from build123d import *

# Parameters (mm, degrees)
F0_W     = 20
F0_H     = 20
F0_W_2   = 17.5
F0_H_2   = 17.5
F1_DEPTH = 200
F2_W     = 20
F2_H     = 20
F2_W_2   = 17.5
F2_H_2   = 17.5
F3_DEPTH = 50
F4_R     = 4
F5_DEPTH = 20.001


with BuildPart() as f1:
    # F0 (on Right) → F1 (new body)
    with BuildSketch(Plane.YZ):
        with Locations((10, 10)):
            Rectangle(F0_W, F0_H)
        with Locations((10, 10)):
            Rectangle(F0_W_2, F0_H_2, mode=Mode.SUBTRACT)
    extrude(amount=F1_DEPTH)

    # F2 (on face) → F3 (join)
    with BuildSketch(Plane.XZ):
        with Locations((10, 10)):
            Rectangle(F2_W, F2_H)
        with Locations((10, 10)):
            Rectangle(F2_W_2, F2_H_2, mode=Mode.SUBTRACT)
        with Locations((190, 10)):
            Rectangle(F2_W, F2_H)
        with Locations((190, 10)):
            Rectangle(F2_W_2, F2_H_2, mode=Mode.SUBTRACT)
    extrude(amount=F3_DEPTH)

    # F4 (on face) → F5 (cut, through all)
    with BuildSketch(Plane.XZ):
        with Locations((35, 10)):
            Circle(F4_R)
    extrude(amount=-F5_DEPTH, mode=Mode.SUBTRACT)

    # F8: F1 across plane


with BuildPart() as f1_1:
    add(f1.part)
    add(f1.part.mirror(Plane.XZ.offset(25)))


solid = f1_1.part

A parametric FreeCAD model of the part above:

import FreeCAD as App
import Part
import Sketcher

V = App.Vector
Q = App.Units.Quantity


def add_polygon(sketch, points):
    """Adds a closed chain of lines whose ends are joined by coincident constraints."""
    first, n = sketch.GeometryCount, len(points)
    for a, b in zip(points, points[1:] + points[:1]):
        sketch.addGeometry(Part.LineSegment(App.Vector(*a, 0), App.Vector(*b, 0)), False)
    for i in range(n):
        sketch.addConstraint(Sketcher.Constraint("Coincident", first + i, 2, first + (i + 1) % n, 1))

doc = App.newDocument("Part")
body = doc.addObject("PartDesign::Body", "Body")

sketch1 = doc.addObject("Sketcher::SketchObject", "Sketch")
body.addObject(sketch1)
sketch1.AttachmentSupport = (doc.YZ_Plane, [""])
sketch1.MapMode = "FlatFace"
add_polygon(sketch1, [(0, 20), (0, 0), (20, 0), (20, 20)])
add_polygon(sketch1, [(19, 1), (1, 1), (1, 19), (19, 19)])
sketch1.addConstraint([
    Sketcher.Constraint("Vertical", 0),
    Sketcher.Constraint("Horizontal", 1),
    Sketcher.Constraint("Vertical", 2),
    Sketcher.Constraint("Horizontal", 3),
    Sketcher.Constraint("Horizontal", 4),
    Sketcher.Constraint("Vertical", 5),
    Sketcher.Constraint("Horizontal", 6),
    Sketcher.Constraint("Vertical", 7),
    Sketcher.Constraint("Coincident", 0, 2, -1, 1),
    Sketcher.Constraint("Equal", 3, 0),
    Sketcher.Constraint("Equal", 6, 5),
    Sketcher.Constraint("DistanceX", 1, 1, 1, 2, Q("20 mm")),
    Sketcher.Constraint("DistanceX", 4, 2, 4, 1, Q("17.5 mm")),
    Sketcher.Constraint("DistanceX", -1, 1, 4, 2, Q("1.25 mm")),
    Sketcher.Constraint("DistanceY", -1, 1, 4, 2, Q("1.25 mm")),
])
pad1 = doc.addObject("PartDesign::Pad", "Pad")
body.addObject(pad1)
pad1.Profile = sketch1
pad1.Length = 200

sketch2 = doc.addObject("Sketcher::SketchObject", "Sketch001")
body.addObject(sketch2)
sketch2.AttachmentSupport = (doc.XZ_Plane, [""])
sketch2.MapMode = "FlatFace"
add_polygon(sketch2, [(0, 20), (0, 0), (20, 0), (20, 20)])
add_polygon(sketch2, [(19, 1), (1, 1), (1, 19), (19, 19)])
add_polygon(sketch2, [(180, 20), (180, 0), (200, 0), (200, 20)])
add_polygon(sketch2, [(199, 1), (181, 1), (181, 19), (199, 19)])
sketch2.addConstraint([
    Sketcher.Constraint("Vertical", 0),
    Sketcher.Constraint("Horizontal", 1),
    Sketcher.Constraint("Vertical", 2),
    Sketcher.Constraint("Horizontal", 3),
    Sketcher.Constraint("Horizontal", 4),
    Sketcher.Constraint("Vertical", 5),
    Sketcher.Constraint("Horizontal", 6),
    Sketcher.Constraint("Vertical", 7),
    Sketcher.Constraint("Vertical", 8),
    Sketcher.Constraint("Horizontal", 9),
    Sketcher.Constraint("Vertical", 10),
    Sketcher.Constraint("Horizontal", 11),
    Sketcher.Constraint("Horizontal", 12),
    Sketcher.Constraint("Vertical", 13),
    Sketcher.Constraint("Horizontal", 14),
    Sketcher.Constraint("Vertical", 15),
    Sketcher.Constraint("Coincident", 0, 2, -1, 1),
    Sketcher.Constraint("PointOnObject", 8, 2, -1),
    Sketcher.Constraint("Horizontal", 3, 2, 10, 2),
    Sketcher.Constraint("Horizontal", 7, 2, 12, 2),
    Sketcher.Constraint("Horizontal", 6, 2, 13, 2),
    Sketcher.Constraint("Equal", 3, 9),
    Sketcher.Constraint("Equal", 6, 12),
    Sketcher.Constraint("Equal", 11, 0),
    Sketcher.Constraint("Equal", 14, 5),
    Sketcher.Constraint("DistanceX", 1, 1, 1, 2, Q("20 mm")),
    Sketcher.Constraint("DistanceX", 4, 2, 4, 1, Q("17.5 mm")),
    Sketcher.Constraint("DistanceX", -1, 1, 8, 2, Q("180 mm")),
    Sketcher.Constraint("DistanceX", -1, 1, 4, 2, Q("1.25 mm")),
    Sketcher.Constraint("DistanceY", -1, 1, 4, 2, Q("1.25 mm")),
    Sketcher.Constraint("DistanceX", -1, 1, 12, 2, Q("181.25 mm")),
])
pad2 = doc.addObject("PartDesign::Pad", "Pad001")
body.addObject(pad2)
pad2.Profile = sketch2
pad2.Length = 50

sketch3 = doc.addObject("Sketcher::SketchObject", "Sketch002")
body.addObject(sketch3)
sketch3.AttachmentSupport = (doc.XZ_Plane, [""])
sketch3.MapMode = "FlatFace"
sketch3.addGeometry(Part.Circle(V(35, 10, 0), V(0, 0, 1), 4), False)
sketch3.addConstraint([
    Sketcher.Constraint("Diameter", 0, Q("8 mm")),
    Sketcher.Constraint("DistanceX", -1, 1, 0, 3, Q("35 mm")),
    Sketcher.Constraint("DistanceY", -1, 1, 0, 3, Q("10 mm")),
])
pocket1 = doc.addObject("PartDesign::Pocket", "Pocket")
body.addObject(pocket1)
pocket1.Profile = sketch3
pocket1.Type = "ThroughAll"
body2 = doc.addObject("PartDesign::Body", "Body001")
doc.recompute()

body2.BaseFeature = body
doc.recompute()

mirroring = doc.addObject("Part::Mirroring", "Mirroring")
mirroring.Source = body
mirroring.Base = V(0, -25, 0)
mirroring.Normal = V(0, -1, 0)
body3 = doc.addObject("PartDesign::Body", "Body002")
body3.BaseFeature = mirroring
boolean = doc.addObject("PartDesign::Boolean", "Boolean")
body2.addObject(boolean)
boolean.Type = "Fuse"
boolean.addObjects([body3])
doc.recompute()
mirroring.Visibility = False

doc.recompute()
